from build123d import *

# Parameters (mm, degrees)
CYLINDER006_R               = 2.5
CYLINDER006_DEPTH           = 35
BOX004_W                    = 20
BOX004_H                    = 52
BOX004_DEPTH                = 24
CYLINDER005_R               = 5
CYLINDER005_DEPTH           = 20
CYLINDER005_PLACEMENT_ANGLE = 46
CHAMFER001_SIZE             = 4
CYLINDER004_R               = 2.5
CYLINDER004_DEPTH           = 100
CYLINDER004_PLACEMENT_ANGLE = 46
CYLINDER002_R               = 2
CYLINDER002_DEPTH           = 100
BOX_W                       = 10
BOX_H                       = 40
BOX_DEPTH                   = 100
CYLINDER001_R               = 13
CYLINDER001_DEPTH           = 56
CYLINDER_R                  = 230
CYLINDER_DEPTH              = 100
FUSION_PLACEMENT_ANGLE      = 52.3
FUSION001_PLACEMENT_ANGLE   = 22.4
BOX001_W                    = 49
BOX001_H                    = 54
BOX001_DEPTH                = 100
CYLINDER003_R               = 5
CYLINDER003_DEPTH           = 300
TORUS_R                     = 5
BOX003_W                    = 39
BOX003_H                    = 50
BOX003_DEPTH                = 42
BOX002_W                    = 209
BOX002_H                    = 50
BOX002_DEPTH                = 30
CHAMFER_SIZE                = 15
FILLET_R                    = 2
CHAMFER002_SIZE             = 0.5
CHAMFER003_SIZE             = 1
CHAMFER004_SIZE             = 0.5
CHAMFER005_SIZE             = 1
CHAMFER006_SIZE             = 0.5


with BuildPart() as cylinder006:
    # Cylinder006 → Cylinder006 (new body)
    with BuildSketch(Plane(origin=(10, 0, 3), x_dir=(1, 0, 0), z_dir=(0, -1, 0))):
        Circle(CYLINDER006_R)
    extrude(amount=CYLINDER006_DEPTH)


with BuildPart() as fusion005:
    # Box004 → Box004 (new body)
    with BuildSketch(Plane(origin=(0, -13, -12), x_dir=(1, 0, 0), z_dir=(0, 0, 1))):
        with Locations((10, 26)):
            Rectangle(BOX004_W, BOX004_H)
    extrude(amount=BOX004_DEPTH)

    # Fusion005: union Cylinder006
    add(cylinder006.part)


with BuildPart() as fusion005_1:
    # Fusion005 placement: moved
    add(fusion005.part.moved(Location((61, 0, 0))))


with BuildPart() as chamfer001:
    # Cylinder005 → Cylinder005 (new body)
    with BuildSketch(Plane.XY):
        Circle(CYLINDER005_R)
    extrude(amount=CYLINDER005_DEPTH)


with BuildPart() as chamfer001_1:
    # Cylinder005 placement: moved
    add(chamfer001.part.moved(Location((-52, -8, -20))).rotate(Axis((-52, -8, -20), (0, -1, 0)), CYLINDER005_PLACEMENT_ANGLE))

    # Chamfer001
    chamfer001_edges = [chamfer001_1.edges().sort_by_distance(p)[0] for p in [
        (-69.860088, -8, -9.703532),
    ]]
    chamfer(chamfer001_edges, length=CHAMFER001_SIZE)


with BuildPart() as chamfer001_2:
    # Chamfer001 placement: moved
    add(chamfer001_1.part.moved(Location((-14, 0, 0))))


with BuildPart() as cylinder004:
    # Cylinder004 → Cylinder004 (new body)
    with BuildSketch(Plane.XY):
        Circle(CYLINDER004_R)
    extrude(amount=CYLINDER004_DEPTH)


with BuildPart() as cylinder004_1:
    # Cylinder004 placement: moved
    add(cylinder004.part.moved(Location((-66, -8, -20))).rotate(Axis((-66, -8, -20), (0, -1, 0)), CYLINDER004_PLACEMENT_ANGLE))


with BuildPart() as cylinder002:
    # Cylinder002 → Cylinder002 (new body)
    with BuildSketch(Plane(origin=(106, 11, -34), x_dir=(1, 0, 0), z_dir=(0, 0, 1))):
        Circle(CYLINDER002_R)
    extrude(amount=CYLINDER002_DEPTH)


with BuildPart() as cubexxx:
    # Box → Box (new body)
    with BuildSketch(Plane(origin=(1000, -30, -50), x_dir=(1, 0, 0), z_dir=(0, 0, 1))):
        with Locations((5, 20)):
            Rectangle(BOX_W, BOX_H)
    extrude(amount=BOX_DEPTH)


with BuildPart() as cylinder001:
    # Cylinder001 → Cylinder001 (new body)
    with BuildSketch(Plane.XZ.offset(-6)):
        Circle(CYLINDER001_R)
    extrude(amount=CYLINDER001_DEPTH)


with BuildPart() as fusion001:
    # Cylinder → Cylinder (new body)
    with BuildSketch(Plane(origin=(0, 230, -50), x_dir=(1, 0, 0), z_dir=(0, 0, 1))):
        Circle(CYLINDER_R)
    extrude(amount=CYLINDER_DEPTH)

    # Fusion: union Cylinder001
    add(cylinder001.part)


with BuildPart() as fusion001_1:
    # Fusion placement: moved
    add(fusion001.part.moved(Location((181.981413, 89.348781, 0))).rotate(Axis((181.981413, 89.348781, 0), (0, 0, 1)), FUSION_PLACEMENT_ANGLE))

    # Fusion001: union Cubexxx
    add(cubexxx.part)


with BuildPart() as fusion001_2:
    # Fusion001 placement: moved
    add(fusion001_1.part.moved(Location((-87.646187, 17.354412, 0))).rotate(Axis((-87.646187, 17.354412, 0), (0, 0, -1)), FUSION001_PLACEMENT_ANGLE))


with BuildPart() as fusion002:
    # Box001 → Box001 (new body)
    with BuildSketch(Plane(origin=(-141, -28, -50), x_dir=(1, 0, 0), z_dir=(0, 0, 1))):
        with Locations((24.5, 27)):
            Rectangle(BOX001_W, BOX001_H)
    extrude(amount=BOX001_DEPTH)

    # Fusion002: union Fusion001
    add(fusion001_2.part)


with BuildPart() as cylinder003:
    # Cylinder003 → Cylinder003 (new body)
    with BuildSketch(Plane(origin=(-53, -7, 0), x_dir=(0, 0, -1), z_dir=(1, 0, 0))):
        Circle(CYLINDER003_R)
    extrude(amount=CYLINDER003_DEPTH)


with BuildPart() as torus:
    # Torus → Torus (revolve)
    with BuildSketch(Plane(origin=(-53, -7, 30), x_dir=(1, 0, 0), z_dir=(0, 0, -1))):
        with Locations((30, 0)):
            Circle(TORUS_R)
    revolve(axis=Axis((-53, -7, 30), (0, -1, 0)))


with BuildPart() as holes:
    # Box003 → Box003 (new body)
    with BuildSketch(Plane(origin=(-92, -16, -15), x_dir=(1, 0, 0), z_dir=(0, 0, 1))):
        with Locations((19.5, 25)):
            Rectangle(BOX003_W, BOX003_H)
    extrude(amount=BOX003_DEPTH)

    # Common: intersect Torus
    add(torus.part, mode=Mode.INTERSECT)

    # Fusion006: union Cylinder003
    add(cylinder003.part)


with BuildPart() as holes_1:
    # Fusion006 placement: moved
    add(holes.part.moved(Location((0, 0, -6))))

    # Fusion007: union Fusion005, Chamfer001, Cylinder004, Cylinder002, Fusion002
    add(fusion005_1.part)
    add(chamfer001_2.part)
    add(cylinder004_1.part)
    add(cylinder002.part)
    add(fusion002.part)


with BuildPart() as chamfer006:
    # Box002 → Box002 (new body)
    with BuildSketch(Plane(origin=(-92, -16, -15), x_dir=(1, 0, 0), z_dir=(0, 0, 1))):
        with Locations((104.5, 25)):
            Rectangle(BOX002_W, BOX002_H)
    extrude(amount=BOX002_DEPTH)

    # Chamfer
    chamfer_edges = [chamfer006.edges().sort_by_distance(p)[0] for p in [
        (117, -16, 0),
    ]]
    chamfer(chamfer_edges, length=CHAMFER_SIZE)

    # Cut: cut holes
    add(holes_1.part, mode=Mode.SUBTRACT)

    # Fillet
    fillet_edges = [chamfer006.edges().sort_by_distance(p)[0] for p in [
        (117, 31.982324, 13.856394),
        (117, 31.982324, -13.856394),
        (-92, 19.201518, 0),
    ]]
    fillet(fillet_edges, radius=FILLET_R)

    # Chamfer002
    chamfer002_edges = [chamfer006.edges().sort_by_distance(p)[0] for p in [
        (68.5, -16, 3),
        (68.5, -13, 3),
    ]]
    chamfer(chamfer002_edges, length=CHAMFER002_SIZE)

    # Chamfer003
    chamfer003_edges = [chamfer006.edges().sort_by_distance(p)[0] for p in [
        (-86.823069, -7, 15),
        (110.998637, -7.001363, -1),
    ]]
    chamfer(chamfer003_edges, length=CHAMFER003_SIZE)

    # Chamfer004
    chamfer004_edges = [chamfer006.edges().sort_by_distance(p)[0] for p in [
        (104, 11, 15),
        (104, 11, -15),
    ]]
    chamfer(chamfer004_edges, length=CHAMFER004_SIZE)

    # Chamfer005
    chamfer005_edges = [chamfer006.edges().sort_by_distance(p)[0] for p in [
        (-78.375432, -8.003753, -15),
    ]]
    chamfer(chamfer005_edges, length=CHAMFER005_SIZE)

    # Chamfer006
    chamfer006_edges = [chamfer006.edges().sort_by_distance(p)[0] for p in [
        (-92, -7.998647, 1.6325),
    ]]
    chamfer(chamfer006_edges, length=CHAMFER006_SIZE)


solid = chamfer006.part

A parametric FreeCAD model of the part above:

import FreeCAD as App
import Part
import Sketcher
from FreeCAD import Vector


def edges_at(feature, points):
    """Names of the edges that pass closest to the given points."""
    edges = feature.Shape.Edges
    near = lambda p: min(range(len(edges)), key=lambda i: edges[i].distToShape(Part.Vertex(*p))[0])
    return sorted({f"Edge{near(p) + 1}" for p in points})


def add_polygon(sketch, points):
    """Adds a closed chain of lines whose ends are joined by coincident constraints."""
    first, n = sketch.GeometryCount, len(points)
    for a, b in zip(points, points[1:] + points[:1]):
        sketch.addGeometry(Part.LineSegment(App.Vector(*a, 0), App.Vector(*b, 0)), False)
    for i in range(n):
        sketch.addConstraint(Sketcher.Constraint("Coincident", first + i, 2, first + (i + 1) % n, 1))

doc = App.newDocument("Part")
body = doc.addObject("PartDesign::Body", "Body")

sketch1 = body.newObject("Sketcher::SketchObject", "Sketch")
sketch1.AttachmentSupport = (doc.getObject("XZ_Plane"), [""])
sketch1.MapMode = "FlatFace"
sketch1.addGeometry(Part.Circle(Vector(10, 3, 0), Vector(0, 0, 1), 2.5), False)
sketch1.addConstraint([
    Sketcher.Constraint("Diameter", 0, 5.0),
    Sketcher.Constraint("DistanceX", -1, 1, 0, 3, 10.0),
    Sketcher.Constraint("DistanceY", -1, 1, 0, 3, 3.0),
])
pad1 = body.newObject("PartDesign::Pad", "Pad")
pad1.Profile = sketch1
pad1.Length = 35
body2 = doc.addObject("PartDesign::Body", "Body001")

sketch2 = body2.newObject("Sketcher::SketchObject", "Sketch001")
sketch2.AttachmentSupport = (doc.getObject("XY_Plane001"), [""])
sketch2.MapMode = "FlatFace"
sketch2.AttachmentOffset = App.Placement(Vector(0, 0, -12), App.Rotation())
add_polygon(sketch2, [(0, 39), (0, -13), (20, -13), (20, 39)])
sketch2.addConstraint([
    Sketcher.Constraint("Vertical", 0),
    Sketcher.Constraint("Horizontal", 1),
    Sketcher.Constraint("Vertical", 2),
    Sketcher.Constraint("Horizontal", 3),
    Sketcher.Constraint("PointOnObject", 0, 2, -2),
    Sketcher.Constraint("DistanceX", 1, 1, 1, 2, 20.0),
    Sketcher.Constraint("DistanceY", 0, 2, 0, 1, 52.0),
    Sketcher.Constraint("DistanceY", 0, 2, -1, 1, 13.0),
])
pad2 = body2.newObject("PartDesign::Pad", "Pad001")
pad2.Profile = sketch2
pad2.Length = 24
doc.recompute()

boolean = body2.newObject("PartDesign::Boolean", "Boolean")
boolean.Type = "Fuse"
boolean.addObjects([body])
body3 = doc.addObject("PartDesign::Body", "Body002")
doc.recompute()

body2.Placement = App.Placement(Vector(61, 0, 0), App.Rotation(Vector(0, 0, 1), 0))
boolean2 = body3.newObject("PartDesign::Boolean", "Boolean001")
boolean2.Type = "Fuse"
boolean2.addObjects([body2])
body4 = doc.addObject("PartDesign::Body", "Body003")

sketch3 = body4.newObject("Sketcher::SketchObject", "Sketch002")
sketch3.AttachmentSupport = (doc.getObject("XY_Plane003"), [""])
sketch3.MapMode = "FlatFace"
sketch3.addGeometry(Part.Circle(Vector(0, 0, 0), Vector(0, 0, 1), 5), False)
sketch3.addConstraint([
    Sketcher.Constraint("Coincident", 0, 3, -1, 1),
    Sketcher.Constraint("Diameter", 0, 10.0),
])
pad3 = body4.newObject("PartDesign::Pad", "Pad002")
pad3.Profile = sketch3
pad3.Length = 20
body5 = doc.addObject("PartDesign::Body", "Body004")
doc.recompute()

body4.Placement = App.Placement(Vector(-52, -8, -20), App.Rotation(Vector(0, -1, 0), 46))
boolean3 = body5.newObject("PartDesign::Boolean", "Boolean002")
boolean3.Type = "Fuse"
boolean3.addObjects([body4])
doc.recompute()

chamfer = body5.newObject("PartDesign::Chamfer", "Chamfer")
chamfer.Base = (boolean3, edges_at(boolean3, [(-69.86, -8, -9.704)]))
chamfer.Size = 4
body6 = doc.addObject("PartDesign::Body", "Body005")
doc.recompute()

body5.Placement = App.Placement(Vector(-14, 0, 0), App.Rotation(Vector(0, 0, 1), 0))
boolean4 = body6.newObject("PartDesign::Boolean", "Boolean003")
boolean4.Type = "Fuse"
boolean4.addObjects([body5])
body7 = doc.addObject("PartDesign::Body", "Body006")

sketch4 = body7.newObject("Sketcher::SketchObject", "Sketch003")
sketch4.AttachmentSupport = (doc.getObject("XY_Plane006"), [""])
sketch4.MapMode = "FlatFace"
sketch4.addGeometry(Part.Circle(Vector(0, 0, 0), Vector(0, 0, 1), 2.5), False)
sketch4.addConstraint([
    Sketcher.Constraint("Coincident", 0, 3, -1, 1),
    Sketcher.Constraint("Diameter", 0, 5.0),
])
pad4 = body7.newObject("PartDesign::Pad", "Pad003")
pad4.Profile = sketch4
pad4.Length = 100
body8 = doc.addObject("PartDesign::Body", "Body007")
doc.recompute()

body7.Placement = App.Placement(Vector(-66, -8, -20), App.Rotation(Vector(0, -1, 0), 46))
boolean5 = body8.newObject("PartDesign::Boolean", "Boolean004")
boolean5.Type = "Fuse"
boolean5.addObjects([body7])
body9 = doc.addObject("PartDesign::Body", "Body008")

sketch5 = body9.newObject("Sketcher::SketchObject", "Sketch004")
sketch5.AttachmentSupport = (doc.getObject("XY_Plane008"), [""])
sketch5.MapMode = "FlatFace"
sketch5.AttachmentOffset = App.Placement(Vector(0, 0, -34), App.Rotation())
sketch5.addGeometry(Part.Circle(Vector(106, 11, 0), Vector(0, 0, 1), 2), False)
sketch5.addConstraint([
    Sketcher.Constraint("Diameter", 0, 4.0),
    Sketcher.Constraint("DistanceX", -1, 1, 0, 3, 106.0),
    Sketcher.Constraint("DistanceY", -1, 1, 0, 3, 11.0),
])
pad5 = body9.newObject("PartDesign::Pad", "Pad004")
pad5.Profile = sketch5
pad5.Length = 100
body10 = doc.addObject("PartDesign::Body", "Body009")

sketch6 = body10.newObject("Sketcher::SketchObject", "Sketch005")
sketch6.AttachmentSupport = (doc.getObject("XY_Plane009"), [""])
sketch6.MapMode = "FlatFace"
sketch6.AttachmentOffset = App.Placement(Vector(0, 0, -50), App.Rotation())
add_polygon(sketch6, [(1000, 10), (1000, -30), (1010, -30), (1010, 10)])
sketch6.addConstraint([
    Sketcher.Constraint("Vertical", 0),
    Sketcher.Constraint("Horizontal", 1),
    Sketcher.Constraint("Vertical", 2),
    Sketcher.Constraint("Horizontal", 3),
    Sketcher.Constraint("DistanceX", 1, 1, 1, 2, 10.0),
    Sketcher.Constraint("DistanceY", 0, 2, 0, 1, 40.0),
    Sketcher.Constraint("DistanceX", -1, 1, 0, 2, 1000.0),
    Sketcher.Constraint("DistanceY", 0, 2, -1, 1, 30.0),
])
pad6 = body10.newObject("PartDesign::Pad", "Pad005")
pad6.Profile = sketch6
pad6.Length = 100
body11 = doc.addObject("PartDesign::Body", "Body010")

sketch7 = body11.newObject("Sketcher::SketchObject", "Sketch006")
sketch7.AttachmentSupport = (doc.getObject("XZ_Plane010"), [""])
sketch7.MapMode = "FlatFace"
sketch7.AttachmentOffset = App.Placement(Vector(0, 0, -6), App.Rotation())
sketch7.addGeometry(Part.Circle(Vector(0, 0, 0), Vector(0, 0, 1), 13), False)
sketch7.addConstraint([
    Sketcher.Constraint("Coincident", 0, 3, -1, 1),
    Sketcher.Constraint("Diameter", 0, 26.0),
])
pad7 = body11.newObject("PartDesign::Pad", "Pad006")
pad7.Profile = sketch7
pad7.Length = 56
body12 = doc.addObject("PartDesign::Body", "Body011")

sketch8 = body12.newObject("Sketcher::SketchObject", "Sketch007")
sketch8.AttachmentSupport = (doc.getObject("XY_Plane011"), [""])
sketch8.MapMode = "FlatFace"
sketch8.AttachmentOffset = App.Placement(Vector(0, 0, -50), App.Rotation())
sketch8.addGeometry(Part.Circle(Vector(0, 230, 0), Vector(0, 0, 1), 230), False)
sketch8.addConstraint([
    Sketcher.Constraint("PointOnObject", 0, 3, -2),
    Sketcher.Constraint("Diameter", 0, 460.0),
    Sketcher.Constraint("DistanceY", -1, 1, 0, 3, 230.0),
])
pad8 = body12.newObject("PartDesign::Pad", "Pad007")
pad8.Profile = sketch8
pad8.Length = 100
doc.recompute()

boolean6 = body12.newObject("PartDesign::Boolean", "Boolean005")
boolean6.Type = "Fuse"
boolean6.addObjects([body11])
body13 = doc.addObject("PartDesign::Body", "Body012")
body13.AllowCompound = True
doc.recompute()

body12.Placement = App.Placement(Vector(181.981413, 89.348781, 0), App.Rotation(Vector(0, 0, 1), 52.3))
boolean7 = body13.newObject("PartDesign::Boolean", "Boolean006")
boolean7.Type = "Fuse"
boolean7.addObjects([body12])
doc.recompute()

boolean8 = body13.newObject("PartDesign::Boolean", "Boolean007")
boolean8.Type = "Fuse"
boolean8.addObjects([body10])
body14 = doc.addObject("PartDesign::Body", "Body013")
body14.AllowCompound = True
doc.recompute()

body13.Placement = App.Placement(Vector(-87.646187, 17.354412, 0), App.Rotation(Vector(0, 0, -1), 22.4))
boolean9 = body14.newObject("PartDesign::Boolean", "Boolean008")
boolean9.Type = "Fuse"
boolean9.addObjects([body13])
body15 = doc.addObject("PartDesign::Body", "Body014")
body15.AllowCompound = True

sketch9 = body15.newObject("Sketcher::SketchObject", "Sketch008")
sketch9.AttachmentSupport = (doc.getObject("XY_Plane014"), [""])
sketch9.MapMode = "FlatFace"
sketch9.AttachmentOffset = App.Placement(Vector(0, 0, -50), App.Rotation())
add_polygon(sketch9, [(-141, 26), (-141, -28), (-92, -28), (-92, 26)])
sketch9.addConstraint([
    Sketcher.Constraint("Vertical", 0),
    Sketcher.Constraint("Horizontal", 1),
    Sketcher.Constraint("Vertical", 2),
    Sketcher.Constraint("Horizontal", 3),
    Sketcher.Constraint("DistanceX", 1, 1, 1, 2, 49.0),
    Sketcher.Constraint("DistanceY", 0, 2, 0, 1, 54.0),
    Sketcher.Constraint("DistanceX", 0, 2, -1, 1, 141.0),
    Sketcher.Constraint("DistanceY", 0, 2, -1, 1, 28.0),
])
pad9 = body15.newObject("PartDesign::Pad", "Pad008")
pad9.Profile = sketch9
pad9.Length = 100
doc.recompute()

boolean10 = body15.newObject("PartDesign::Boolean", "Boolean009")
boolean10.Type = "Fuse"
boolean10.addObjects([body14])
body16 = doc.addObject("PartDesign::Body", "Body015")

sketch10 = body16.newObject("Sketcher::SketchObject", "Sketch009")
sketch10.AttachmentSupport = (doc.getObject("YZ_Plane015"), [""])
sketch10.MapMode = "FlatFace"
sketch10.AttachmentOffset = App.Placement(Vector(0, 0, -53), App.Rotation())
sketch10.addGeometry(Part.Circle(Vector(-7, 0, 0), Vector(0, 0, 1), 5), False)
sketch10.addConstraint([
    Sketcher.Constraint("PointOnObject", 0, 3, -1),
    Sketcher.Constraint("Diameter", 0, 10.0),
    Sketcher.Constraint("DistanceX", 0, 3, -1, 1, 7.0),
])
pad10 = body16.newObject("PartDesign::Pad", "Pad009")
pad10.Profile = sketch10
pad10.Length = 300
body17 = doc.addObject("PartDesign::Body", "Body016")

sketch11 = body17.newObject("Sketcher::SketchObject", "Sketch010")
sketch11.AttachmentSupport = (doc.getObject("XY_Plane016"), [""])
sketch11.MapMode = "FlatFace"
sketch11.AttachmentOffset = App.Placement(Vector(0, 0, 30), App.Rotation())
sketch11.addGeometry(Part.Circle(Vector(-23, -7, 0), Vector(0, 0, 1), 5), False)
sketch11.addGeometry(Part.LineSegment(Vector(-53, -7, 0), Vector(-53, -17, 0)), True)
sketch11.addConstraint([
    Sketcher.Constraint("Vertical", 1),
    Sketcher.Constraint("Horizontal", 0, 3, 1, 1),
    Sketcher.Constraint("Diameter", 0, 10.0),
    Sketcher.Constraint("DistanceY", 1, 2, 1, 1, 10.0),
    Sketcher.Constraint("DistanceX", 0, 3, -1, 1, 23.0),
    Sketcher.Constraint("DistanceY", 0, 3, -1, 1, 7.0),
    Sketcher.Constraint("DistanceX", 1, 1, -1, 1, 53.0),
])
revolution = body17.newObject("PartDesign::Revolution", "Revolution")
revolution.Profile = sketch11
revolution.ReferenceAxis = (sketch11, ["Axis0"])
revolution.Angle = 360
body18 = doc.addObject("PartDesign::Body", "Body017")

sketch12 = body18.newObject("Sketcher::SketchObject", "Sketch011")
sketch12.AttachmentSupport = (doc.getObject("XY_Plane017"), [""])
sketch12.MapMode = "FlatFace"
sketch12.AttachmentOffset = App.Placement(Vector(0, 0, -15), App.Rotation())
add_polygon(sketch12, [(-92, 34), (-92, -16), (-53, -16), (-53, 34)])
sketch12.addConstraint([
    Sketcher.Constraint("Vertical", 0),
    Sketcher.Constraint("Horizontal", 1),
    Sketcher.Constraint("Vertical", 2),
    Sketcher.Constraint("Horizontal", 3),
    Sketcher.Constraint("DistanceX", 1, 1, 1, 2, 39.0),
    Sketcher.Constraint("DistanceY", 0, 2, 0, 1, 50.0),
    Sketcher.Constraint("DistanceX", 0, 2, -1, 1, 92.0),
    Sketcher.Constraint("DistanceY", 0, 2, -1, 1, 16.0),
])
pad11 = body18.newObject("PartDesign::Pad", "Pad010")
pad11.Profile = sketch12
pad11.Length = 42
doc.recompute()

boolean11 = body18.newObject("PartDesign::Boolean", "Boolean010")
boolean11.Type = "Common"
boolean11.addObjects([body17])
doc.recompute()

boolean12 = body18.newObject("PartDesign::Boolean", "Boolean011")
boolean12.Type = "Fuse"
boolean12.addObjects([body16])
body19 = doc.addObject("PartDesign::Body", "Body018")
body19.AllowCompound = True
doc.recompute()

body18.Placement = App.Placement(Vector(0, 0, -6), App.Rotation(Vector(0, 0, 1), 0))
boolean13 = body19.newObject("PartDesign::Boolean", "Boolean012")
boolean13.Type = "Fuse"
boolean13.addObjects([body18])
doc.recompute()

boolean14 = body19.newObject("PartDesign::Boolean", "Boolean013")
boolean14.Type = "Fuse"
boolean14.addObjects([body3])
doc.recompute()

boolean15 = body19.newObject("PartDesign::Boolean", "Boolean014")
boolean15.Type = "Fuse"
boolean15.addObjects([body6])
doc.recompute()

boolean16 = body19.newObject("PartDesign::Boolean", "Boolean015")
boolean16.Type = "Fuse"
boolean16.addObjects([body8])
doc.recompute()

boolean17 = body19.newObject("PartDesign::Boolean", "Boolean016")
boolean17.Type = "Fuse"
boolean17.addObjects([body9])
doc.recompute()

boolean18 = body19.newObject("PartDesign::Boolean", "Boolean017")
boolean18.Type = "Fuse"
boolean18.addObjects([body15])
body20 = doc.addObject("PartDesign::Body", "Body019")

sketch13 = body20.newObject("Sketcher::SketchObject", "Sketch012")
sketch13.AttachmentSupport = (doc.getObject("XY_Plane019"), [""])
sketch13.MapMode = "FlatFace"
sketch13.AttachmentOffset = App.Placement(Vector(0, 0, -15), App.Rotation())
add_polygon(sketch13, [(-92, 34), (-92, -16), (117, -16), (117, 34)])
sketch13.addConstraint([
    Sketcher.Constraint("Vertical", 0),
    Sketcher.Constraint("Horizontal", 1),
    Sketcher.Constraint("Vertical", 2),
    Sketcher.Constraint("Horizontal", 3),
    Sketcher.Constraint("DistanceX", 1, 1, 1, 2, 209.0),
    Sketcher.Constraint("DistanceY", 0, 2, 0, 1, 50.0),
    Sketcher.Constraint("DistanceX", 0, 2, -1, 1, 92.0),
    Sketcher.Constraint("DistanceY", 0, 2, -1, 1, 16.0),
])
pad12 = body20.newObject("PartDesign::Pad", "Pad011")
pad12.Profile = sketch13
pad12.Length = 30
doc.recompute()

chamfer2 = body20.newObject("PartDesign::Chamfer", "Chamfer001")
chamfer2.Base = (pad12, edges_at(pad12, [(117, -16, 0)]))
chamfer2.Size = 15
doc.recompute()

boolean19 = body20.newObject("PartDesign::Boolean", "Boolean018")
boolean19.Type = "Cut"
boolean19.addObjects([body19])
doc.recompute()

fillet = body20.newObject("PartDesign::Fillet", "Fillet")
fillet.Base = (boolean19, edges_at(boolean19, [(117, 31.982, 13.856), (117, 31.982, -13.856), (-92, 19.202, 0)]))
fillet.Radius = 2
doc.recompute()

chamfer3 = body20.newObject("PartDesign::Chamfer", "Chamfer002")
chamfer3.Base = (fillet, edges_at(fillet, [(68.5, -16, 3), (68.5, -13, 3)]))
chamfer3.Size = 0.5
doc.recompute()

chamfer4 = body20.newObject("PartDesign::Chamfer", "Chamfer003")
chamfer4.Base = (chamfer3, edges_at(chamfer3, [(-76.324, -7, 15), (111.001, -6.999, -1)]))
chamfer4.Size = 1
doc.recompute()

chamfer5 = body20.newObject("PartDesign::Chamfer", "Chamfer004")
chamfer5.Base = (chamfer4, edges_at(chamfer4, [(104, 11, 15), (104, 11, -15)]))
chamfer5.Size = 0.5
doc.recompute()

chamfer6 = body20.newObject("PartDesign::Chamfer", "Chamfer005")
chamfer6.Base = (chamfer5, edges_at(chamfer5, [(-78.375, -8.004, -15)]))
chamfer6.Size = 1
doc.recompute()

chamfer7 = body20.newObject("PartDesign::Chamfer", "Chamfer006")
chamfer7.Base = (chamfer6, edges_at(chamfer6, [(-92, -8.001, 1.632)]))
chamfer7.Size = 0.5

doc.recompute()
